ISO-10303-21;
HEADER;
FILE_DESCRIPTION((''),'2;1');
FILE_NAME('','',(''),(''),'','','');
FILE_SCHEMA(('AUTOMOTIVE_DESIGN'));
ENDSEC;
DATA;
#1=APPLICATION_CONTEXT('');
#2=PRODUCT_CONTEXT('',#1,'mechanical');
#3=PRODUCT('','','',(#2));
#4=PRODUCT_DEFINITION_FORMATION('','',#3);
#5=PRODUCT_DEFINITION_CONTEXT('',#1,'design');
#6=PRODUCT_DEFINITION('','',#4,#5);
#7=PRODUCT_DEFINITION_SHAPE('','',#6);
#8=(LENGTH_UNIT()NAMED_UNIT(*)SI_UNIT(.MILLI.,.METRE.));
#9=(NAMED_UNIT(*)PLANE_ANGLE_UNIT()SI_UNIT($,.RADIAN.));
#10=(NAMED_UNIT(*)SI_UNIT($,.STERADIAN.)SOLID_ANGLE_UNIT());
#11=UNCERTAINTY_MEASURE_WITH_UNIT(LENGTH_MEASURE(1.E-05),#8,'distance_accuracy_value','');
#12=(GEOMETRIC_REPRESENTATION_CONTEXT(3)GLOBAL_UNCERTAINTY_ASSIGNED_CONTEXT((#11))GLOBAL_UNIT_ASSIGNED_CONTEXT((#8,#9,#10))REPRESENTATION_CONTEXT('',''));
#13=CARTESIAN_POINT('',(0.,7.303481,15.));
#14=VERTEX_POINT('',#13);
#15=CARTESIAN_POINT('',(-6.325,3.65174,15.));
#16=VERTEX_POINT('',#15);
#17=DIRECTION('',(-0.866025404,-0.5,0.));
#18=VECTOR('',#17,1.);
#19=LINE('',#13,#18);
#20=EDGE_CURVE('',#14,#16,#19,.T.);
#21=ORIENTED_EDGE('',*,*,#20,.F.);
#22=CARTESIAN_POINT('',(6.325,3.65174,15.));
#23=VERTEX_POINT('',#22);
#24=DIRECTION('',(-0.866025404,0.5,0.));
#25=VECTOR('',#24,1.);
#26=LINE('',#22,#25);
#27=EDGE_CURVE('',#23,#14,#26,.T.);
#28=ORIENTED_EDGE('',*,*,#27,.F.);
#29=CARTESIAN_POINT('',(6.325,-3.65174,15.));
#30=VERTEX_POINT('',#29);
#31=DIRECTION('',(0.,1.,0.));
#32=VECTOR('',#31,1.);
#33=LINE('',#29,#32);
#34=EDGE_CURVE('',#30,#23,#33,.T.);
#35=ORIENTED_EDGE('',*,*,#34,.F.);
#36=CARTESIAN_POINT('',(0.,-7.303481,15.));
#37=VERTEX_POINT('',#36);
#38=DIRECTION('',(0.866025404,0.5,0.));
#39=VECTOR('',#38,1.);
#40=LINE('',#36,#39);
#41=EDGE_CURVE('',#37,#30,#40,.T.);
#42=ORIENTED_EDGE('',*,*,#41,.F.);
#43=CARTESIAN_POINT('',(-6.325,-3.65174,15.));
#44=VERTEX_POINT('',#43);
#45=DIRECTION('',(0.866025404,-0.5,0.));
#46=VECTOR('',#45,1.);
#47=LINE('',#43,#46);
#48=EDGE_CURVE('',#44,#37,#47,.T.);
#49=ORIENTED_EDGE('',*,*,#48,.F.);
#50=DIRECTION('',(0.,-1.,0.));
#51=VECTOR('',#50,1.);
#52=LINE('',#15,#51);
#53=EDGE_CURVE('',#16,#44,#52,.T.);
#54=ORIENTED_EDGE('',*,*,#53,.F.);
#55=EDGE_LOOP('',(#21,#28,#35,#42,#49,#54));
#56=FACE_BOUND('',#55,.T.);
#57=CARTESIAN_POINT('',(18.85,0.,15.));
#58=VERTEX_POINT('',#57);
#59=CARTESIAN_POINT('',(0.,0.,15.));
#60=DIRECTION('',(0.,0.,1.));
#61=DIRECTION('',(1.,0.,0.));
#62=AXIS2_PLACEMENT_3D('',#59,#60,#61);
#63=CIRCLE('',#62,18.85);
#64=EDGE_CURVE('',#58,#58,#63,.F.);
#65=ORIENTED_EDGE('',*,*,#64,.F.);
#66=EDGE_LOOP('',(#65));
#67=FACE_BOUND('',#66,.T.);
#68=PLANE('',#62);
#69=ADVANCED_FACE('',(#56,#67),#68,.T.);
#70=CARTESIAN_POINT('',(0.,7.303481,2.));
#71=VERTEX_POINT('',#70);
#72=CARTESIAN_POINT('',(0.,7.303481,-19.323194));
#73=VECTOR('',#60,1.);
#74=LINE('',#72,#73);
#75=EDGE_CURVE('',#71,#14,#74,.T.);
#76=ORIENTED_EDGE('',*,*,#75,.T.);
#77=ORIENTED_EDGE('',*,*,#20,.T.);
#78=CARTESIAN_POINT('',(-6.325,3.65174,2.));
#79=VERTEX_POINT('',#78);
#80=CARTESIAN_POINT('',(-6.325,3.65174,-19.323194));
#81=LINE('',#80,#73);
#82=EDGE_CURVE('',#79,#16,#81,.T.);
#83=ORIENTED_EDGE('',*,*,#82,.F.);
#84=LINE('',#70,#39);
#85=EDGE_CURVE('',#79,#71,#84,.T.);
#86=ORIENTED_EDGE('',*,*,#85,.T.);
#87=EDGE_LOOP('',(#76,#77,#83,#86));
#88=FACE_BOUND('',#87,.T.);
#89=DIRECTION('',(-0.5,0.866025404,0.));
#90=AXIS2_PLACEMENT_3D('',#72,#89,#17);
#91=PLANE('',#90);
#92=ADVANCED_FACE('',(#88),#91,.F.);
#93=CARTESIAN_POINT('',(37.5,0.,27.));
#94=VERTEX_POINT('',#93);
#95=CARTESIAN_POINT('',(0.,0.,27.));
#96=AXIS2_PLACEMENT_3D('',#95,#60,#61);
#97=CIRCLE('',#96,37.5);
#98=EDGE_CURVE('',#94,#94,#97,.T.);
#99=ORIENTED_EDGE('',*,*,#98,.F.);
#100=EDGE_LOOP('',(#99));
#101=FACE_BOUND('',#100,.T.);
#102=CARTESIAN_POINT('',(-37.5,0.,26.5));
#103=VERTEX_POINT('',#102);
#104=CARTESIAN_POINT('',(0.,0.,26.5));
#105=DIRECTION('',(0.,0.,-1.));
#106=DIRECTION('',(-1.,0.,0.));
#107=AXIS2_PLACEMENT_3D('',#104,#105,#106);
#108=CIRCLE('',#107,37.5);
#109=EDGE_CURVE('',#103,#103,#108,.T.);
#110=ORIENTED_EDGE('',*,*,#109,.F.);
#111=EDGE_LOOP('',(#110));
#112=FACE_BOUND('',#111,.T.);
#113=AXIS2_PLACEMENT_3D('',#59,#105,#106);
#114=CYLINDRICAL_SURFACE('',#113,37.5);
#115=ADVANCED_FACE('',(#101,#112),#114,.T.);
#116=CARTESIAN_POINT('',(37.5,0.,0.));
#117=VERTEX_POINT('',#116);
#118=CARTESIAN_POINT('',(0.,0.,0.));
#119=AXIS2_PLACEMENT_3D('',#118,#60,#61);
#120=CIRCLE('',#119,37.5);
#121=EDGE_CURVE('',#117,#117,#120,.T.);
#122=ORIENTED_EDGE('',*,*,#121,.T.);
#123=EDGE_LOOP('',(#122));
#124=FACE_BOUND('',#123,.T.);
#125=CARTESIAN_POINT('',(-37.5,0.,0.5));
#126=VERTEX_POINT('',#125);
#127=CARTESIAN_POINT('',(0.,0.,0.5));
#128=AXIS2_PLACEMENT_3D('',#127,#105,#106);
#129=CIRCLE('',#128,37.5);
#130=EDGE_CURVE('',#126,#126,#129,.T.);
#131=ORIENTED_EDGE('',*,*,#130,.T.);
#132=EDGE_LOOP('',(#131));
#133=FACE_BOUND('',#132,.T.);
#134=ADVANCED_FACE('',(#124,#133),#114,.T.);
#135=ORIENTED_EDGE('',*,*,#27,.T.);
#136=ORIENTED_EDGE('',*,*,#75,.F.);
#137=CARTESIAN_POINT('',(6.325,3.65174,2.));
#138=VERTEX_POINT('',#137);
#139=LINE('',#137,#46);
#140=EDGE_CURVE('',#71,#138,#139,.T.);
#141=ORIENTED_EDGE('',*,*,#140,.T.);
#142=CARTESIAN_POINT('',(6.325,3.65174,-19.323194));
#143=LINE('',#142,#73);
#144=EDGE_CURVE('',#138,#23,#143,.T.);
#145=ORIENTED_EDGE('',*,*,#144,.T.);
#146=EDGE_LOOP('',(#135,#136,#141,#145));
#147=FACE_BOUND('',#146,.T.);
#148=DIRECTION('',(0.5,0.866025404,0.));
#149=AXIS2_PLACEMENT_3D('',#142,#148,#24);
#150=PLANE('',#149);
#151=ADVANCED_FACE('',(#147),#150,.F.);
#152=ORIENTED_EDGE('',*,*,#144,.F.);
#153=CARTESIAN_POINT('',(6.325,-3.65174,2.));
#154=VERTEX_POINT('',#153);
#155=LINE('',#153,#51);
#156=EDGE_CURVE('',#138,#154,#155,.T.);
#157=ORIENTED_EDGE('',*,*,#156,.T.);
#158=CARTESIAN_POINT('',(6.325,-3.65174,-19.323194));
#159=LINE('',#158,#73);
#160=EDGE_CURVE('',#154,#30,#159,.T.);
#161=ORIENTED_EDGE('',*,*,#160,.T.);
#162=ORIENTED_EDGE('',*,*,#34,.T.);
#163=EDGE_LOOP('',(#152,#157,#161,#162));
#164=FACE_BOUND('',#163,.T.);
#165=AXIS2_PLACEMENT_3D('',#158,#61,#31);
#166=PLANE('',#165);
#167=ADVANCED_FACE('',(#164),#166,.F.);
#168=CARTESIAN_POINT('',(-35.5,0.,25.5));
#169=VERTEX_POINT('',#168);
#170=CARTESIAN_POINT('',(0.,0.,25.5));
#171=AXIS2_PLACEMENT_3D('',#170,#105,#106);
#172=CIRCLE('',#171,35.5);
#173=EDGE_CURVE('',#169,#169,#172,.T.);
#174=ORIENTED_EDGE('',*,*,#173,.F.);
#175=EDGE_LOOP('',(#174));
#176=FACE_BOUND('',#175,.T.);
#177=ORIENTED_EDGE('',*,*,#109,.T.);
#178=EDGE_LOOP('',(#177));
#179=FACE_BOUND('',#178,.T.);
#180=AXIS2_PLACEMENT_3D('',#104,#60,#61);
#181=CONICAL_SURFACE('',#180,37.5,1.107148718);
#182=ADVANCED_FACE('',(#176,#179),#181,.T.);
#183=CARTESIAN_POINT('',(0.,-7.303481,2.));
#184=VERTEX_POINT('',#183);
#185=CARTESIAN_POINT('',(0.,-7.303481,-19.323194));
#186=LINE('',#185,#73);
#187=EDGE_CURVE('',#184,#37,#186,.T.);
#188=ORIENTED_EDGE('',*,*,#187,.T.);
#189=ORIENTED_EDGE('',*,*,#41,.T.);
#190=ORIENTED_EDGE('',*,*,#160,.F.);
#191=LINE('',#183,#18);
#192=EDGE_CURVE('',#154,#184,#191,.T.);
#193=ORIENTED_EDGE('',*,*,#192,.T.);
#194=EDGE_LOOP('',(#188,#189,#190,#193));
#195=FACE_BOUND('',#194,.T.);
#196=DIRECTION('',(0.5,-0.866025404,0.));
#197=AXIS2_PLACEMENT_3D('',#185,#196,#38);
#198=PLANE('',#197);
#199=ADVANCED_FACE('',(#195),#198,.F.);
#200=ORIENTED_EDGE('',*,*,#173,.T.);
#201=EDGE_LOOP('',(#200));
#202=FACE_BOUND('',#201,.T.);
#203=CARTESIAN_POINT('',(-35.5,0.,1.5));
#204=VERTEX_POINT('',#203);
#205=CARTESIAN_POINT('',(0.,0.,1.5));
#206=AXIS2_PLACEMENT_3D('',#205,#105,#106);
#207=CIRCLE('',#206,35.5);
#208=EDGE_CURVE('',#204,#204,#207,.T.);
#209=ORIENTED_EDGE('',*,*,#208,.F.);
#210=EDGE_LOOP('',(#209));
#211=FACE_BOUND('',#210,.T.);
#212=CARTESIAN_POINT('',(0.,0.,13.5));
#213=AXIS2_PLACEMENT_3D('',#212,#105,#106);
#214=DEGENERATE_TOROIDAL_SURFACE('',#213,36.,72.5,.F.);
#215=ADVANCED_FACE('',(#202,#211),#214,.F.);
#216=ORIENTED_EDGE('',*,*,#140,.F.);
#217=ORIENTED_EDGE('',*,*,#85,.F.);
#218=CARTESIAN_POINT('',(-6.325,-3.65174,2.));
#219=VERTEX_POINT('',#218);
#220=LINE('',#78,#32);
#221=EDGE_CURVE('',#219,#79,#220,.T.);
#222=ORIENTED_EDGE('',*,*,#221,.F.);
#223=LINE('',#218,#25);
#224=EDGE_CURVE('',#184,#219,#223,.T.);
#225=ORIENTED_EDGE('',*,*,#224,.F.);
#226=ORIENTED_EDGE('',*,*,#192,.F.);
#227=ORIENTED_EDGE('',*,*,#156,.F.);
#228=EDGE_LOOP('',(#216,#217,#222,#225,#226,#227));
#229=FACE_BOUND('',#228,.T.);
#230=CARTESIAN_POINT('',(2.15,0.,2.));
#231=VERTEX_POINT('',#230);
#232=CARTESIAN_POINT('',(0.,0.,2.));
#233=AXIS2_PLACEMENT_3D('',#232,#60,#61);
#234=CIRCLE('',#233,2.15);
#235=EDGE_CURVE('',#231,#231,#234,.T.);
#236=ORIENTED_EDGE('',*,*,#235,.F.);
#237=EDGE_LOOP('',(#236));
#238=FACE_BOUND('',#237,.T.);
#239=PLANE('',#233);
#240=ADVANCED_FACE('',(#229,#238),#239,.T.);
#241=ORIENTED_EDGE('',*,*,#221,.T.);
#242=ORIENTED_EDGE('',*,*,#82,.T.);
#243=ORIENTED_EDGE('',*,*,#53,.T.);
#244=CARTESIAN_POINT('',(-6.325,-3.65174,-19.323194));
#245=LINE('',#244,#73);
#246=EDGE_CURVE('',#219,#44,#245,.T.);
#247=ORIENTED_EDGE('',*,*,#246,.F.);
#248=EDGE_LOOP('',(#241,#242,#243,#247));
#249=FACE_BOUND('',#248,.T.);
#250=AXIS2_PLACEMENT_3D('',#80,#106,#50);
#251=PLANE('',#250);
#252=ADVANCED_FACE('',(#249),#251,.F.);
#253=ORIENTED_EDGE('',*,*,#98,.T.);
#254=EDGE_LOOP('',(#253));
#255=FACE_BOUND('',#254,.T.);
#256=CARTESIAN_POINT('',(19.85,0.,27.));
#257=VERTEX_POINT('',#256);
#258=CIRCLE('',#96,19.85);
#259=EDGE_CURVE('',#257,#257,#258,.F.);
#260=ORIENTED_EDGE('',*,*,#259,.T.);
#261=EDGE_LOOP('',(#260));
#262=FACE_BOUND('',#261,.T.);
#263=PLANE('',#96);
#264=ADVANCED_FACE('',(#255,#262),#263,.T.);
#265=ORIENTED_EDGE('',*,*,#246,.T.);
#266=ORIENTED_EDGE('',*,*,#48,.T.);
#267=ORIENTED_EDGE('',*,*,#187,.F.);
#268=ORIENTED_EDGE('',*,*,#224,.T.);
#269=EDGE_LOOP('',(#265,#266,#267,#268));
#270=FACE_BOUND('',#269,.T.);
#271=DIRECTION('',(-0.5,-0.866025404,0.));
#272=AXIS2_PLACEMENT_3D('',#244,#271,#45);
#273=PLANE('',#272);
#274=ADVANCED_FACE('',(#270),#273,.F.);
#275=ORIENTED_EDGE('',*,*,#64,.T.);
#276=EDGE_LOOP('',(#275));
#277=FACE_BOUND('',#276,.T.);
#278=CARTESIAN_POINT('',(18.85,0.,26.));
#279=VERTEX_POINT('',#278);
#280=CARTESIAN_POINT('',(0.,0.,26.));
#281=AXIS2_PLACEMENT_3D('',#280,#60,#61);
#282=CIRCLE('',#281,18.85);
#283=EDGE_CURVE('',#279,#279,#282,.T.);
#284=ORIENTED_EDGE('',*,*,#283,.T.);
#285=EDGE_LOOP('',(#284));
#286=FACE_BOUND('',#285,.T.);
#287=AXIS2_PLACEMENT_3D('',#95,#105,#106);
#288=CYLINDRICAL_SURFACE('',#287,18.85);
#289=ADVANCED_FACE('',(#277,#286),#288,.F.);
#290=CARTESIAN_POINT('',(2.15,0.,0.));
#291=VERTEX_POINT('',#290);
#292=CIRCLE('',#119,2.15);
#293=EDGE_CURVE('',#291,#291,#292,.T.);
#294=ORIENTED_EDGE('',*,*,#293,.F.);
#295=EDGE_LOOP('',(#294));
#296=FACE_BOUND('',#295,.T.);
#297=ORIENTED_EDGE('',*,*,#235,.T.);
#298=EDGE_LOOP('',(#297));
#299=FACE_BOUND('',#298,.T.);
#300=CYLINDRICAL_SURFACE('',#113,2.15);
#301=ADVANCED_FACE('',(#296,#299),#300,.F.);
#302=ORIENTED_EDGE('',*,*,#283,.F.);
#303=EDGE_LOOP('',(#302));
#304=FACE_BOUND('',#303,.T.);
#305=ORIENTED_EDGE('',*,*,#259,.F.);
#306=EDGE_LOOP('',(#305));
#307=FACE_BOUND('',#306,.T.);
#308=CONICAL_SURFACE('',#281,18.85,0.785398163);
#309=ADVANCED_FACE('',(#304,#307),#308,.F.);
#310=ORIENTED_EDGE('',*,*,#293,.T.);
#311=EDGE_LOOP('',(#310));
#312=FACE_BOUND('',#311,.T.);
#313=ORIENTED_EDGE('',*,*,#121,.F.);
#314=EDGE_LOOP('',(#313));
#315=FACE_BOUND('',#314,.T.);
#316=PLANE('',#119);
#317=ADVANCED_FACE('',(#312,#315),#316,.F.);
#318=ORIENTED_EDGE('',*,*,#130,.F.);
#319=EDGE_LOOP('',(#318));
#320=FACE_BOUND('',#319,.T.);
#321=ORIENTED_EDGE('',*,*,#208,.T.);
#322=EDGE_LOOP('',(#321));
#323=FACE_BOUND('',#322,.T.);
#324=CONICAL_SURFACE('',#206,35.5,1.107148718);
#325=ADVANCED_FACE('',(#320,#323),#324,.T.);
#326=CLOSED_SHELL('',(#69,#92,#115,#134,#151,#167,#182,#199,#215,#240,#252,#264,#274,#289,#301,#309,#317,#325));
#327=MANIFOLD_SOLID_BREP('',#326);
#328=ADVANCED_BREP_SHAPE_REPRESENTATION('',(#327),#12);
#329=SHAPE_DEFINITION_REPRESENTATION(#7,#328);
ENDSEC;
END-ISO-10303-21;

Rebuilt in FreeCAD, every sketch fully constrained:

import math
import FreeCAD as App
import Part
import Sketcher

V = App.Vector
Q = App.Units.Quantity


def edges_at(feature, points):
    """Names of the edges that pass closest to the given points."""
    edges = feature.Shape.Edges
    near = lambda p: min(range(len(edges)), key=lambda i: edges[i].distToShape(Part.Vertex(*p))[0])
    return sorted({f"Edge{near(p) + 1}" for p in points})

doc = App.newDocument("Part")
body = doc.addObject("PartDesign::Body", "Body")

# Sketch on XY plane
sketch1 = doc.addObject("Sketcher::SketchObject", "Sketch")
body.addObject(sketch1)
sketch1.AttachmentSupport = (doc.XY_Plane, [""])
sketch1.MapMode = "FlatFace"
sketch1.addGeometry(Part.Circle(V(0, 0, 0), V(0, 0, 1), 37.5), False)
sketch1.addGeometry(Part.Circle(V(0, 0, 0), V(0, 0, 1), 2.1), False)
sketch1.addConstraint(Sketcher.Constraint("Coincident", 0, 3, -1, 1))
sketch1.addConstraint(Sketcher.Constraint("Coincident", 1, 3, -1, 1))
sketch1.addConstraint(Sketcher.Constraint("Diameter", 0, 75.0))
sketch1.addConstraint(Sketcher.Constraint("Diameter", 1, 4.3))
pad1 = doc.addObject("PartDesign::Pad", "Pad")
body.addObject(pad1)
pad1.Profile = sketch1
pad1.Length = 15

# Sketch on XY plane
sketch2 = doc.addObject("Sketcher::SketchObject", "Sketch001")
body.addObject(sketch2)
sketch2.AttachmentSupport = (doc.XY_Plane, [""])
sketch2.MapMode = "FlatFace"
sketch2.AttachmentOffset = App.Placement(V(0, 0, 15), App.Rotation())
sketch2.addGeometry(Part.Circle(V(0, 0, 0), V(0, 0, 1), 38), False)
sketch2.addGeometry(Part.Circle(V(0, 0, 0), V(0, 0, 1), 19), False)
sketch2.addConstraint(Sketcher.Constraint("Coincident", 0, 3, -1, 1))
sketch2.addConstraint(Sketcher.Constraint("Coincident", 1, 3, -1, 1))
sketch2.addConstraint(Sketcher.Constraint("Diameter", 0, 75.0))
sketch2.addConstraint(Sketcher.Constraint("Diameter", 1, 37.7))
pad2 = doc.addObject("PartDesign::Pad", "Pad001")
body.addObject(pad2)
pad2.Profile = sketch2
pad2.Length = 12

# Sketch on XY plane
sketch3 = doc.addObject("Sketcher::SketchObject", "Sketch002")
body.addObject(sketch3)
sketch3.AttachmentSupport = (doc.XY_Plane, [""])
sketch3.MapMode = "FlatFace"
sketch3.AttachmentOffset = App.Placement(V(0, 0, 15), App.Rotation())
sketch3.addGeometry(Part.LineSegment(V(6, -4, 0), V(6, 4, 0)), False)
sketch3.addGeometry(Part.LineSegment(V(6, 4, 0), V(0, 7, 0)), False)
sketch3.addGeometry(Part.LineSegment(V(0, 7, 0), V(-6, 4, 0)), False)
sketch3.addGeometry(Part.LineSegment(V(-6, 4, 0), V(-6, -4, 0)), False)
sketch3.addGeometry(Part.LineSegment(V(-6, -4, 0), V(0, -7, 0)), False)
sketch3.addGeometry(Part.LineSegment(V(0, -7, 0), V(6, -4, 0)), False)
sketch3.addConstraint(Sketcher.Constraint("Coincident", 0, 2, 1, 1))
sketch3.addConstraint(Sketcher.Constraint("Coincident", 1, 2, 2, 1))
sketch3.addConstraint(Sketcher.Constraint("Coincident", 2, 2, 3, 1))
sketch3.addConstraint(Sketcher.Constraint("Coincident", 3, 2, 4, 1))
sketch3.addConstraint(Sketcher.Constraint("Coincident", 4, 2, 5, 1))
sketch3.addConstraint(Sketcher.Constraint("Coincident", 5, 2, 0, 1))
sketch3.addConstraint(Sketcher.Constraint("Vertical", 0))
sketch3.addConstraint(Sketcher.Constraint("Vertical", 3))
sketch3.addConstraint(Sketcher.Constraint("Symmetric", 0, 2, 3, 2, -1, 1))
sketch3.addConstraint(Sketcher.Constraint("Symmetric", 1, 2, 4, 2, -1, 1))
sketch3.addConstraint(Sketcher.Constraint("PointOnObject", 1, 2, -2))
sketch3.addConstraint(Sketcher.Constraint("Parallel", 2, 5))
sketch3.addConstraint(Sketcher.Constraint("Horizontal", 0, 2, 2, 2))
sketch3.addConstraint(Sketcher.Constraint("Angle", 1, Q("150 deg")))
sketch3.addConstraint(Sketcher.Constraint("DistanceX", 2, 2, 0, 2, 12.65))
sketch3.addConstraint(Sketcher.Constraint("DistanceY", 0, 1, 0, 2, 7.303481))
pocket1 = doc.addObject("PartDesign::Pocket", "Pocket")
body.addObject(pocket1)
pocket1.Profile = sketch3
pocket1.Length = 13
doc.recompute()

chamfer = doc.addObject("PartDesign::Chamfer", "Chamfer")
body.addObject(chamfer)
chamfer.Base = (pocket1, edges_at(pocket1, [(-18.85, 0, 27)]))
chamfer.Size = 1

# Sketch on YZ plane
sketch4 = doc.addObject("Sketcher::SketchObject", "Sketch003")
body.addObject(sketch4)
sketch4.AttachmentSupport = (doc.YZ_Plane, [""])
sketch4.MapMode = "FlatFace"
sketch4.addGeometry(Part.LineSegment(V(37.5, 0.5, 0), V(37.5, 26.5, 0)), False)
sketch4.addGeometry(Part.LineSegment(V(37.5, 26.5, 0), V(35.5, 25.5, 0)), False)
sketch4.addGeometry(Part.ArcOfCircle(Part.Circle(V(-36, 13.5, 0), V(0, 0, 1), 72.5), math.radians(-9.53), math.radians(9.53)), False)
sketch4.addGeometry(Part.LineSegment(V(35.5, 1.5, 0), V(37.5, 0.5, 0)), False)
sketch4.addConstraint(Sketcher.Constraint("Coincident", 0, 2, 1, 1))
sketch4.addConstraint(Sketcher.Constraint("Coincident", 1, 2, 2, 2))
sketch4.addConstraint(Sketcher.Constraint("Coincident", 2, 1, 3, 1))
sketch4.addConstraint(Sketcher.Constraint("Coincident", 3, 2, 0, 1))
sketch4.addConstraint(Sketcher.Constraint("Vertical", 0))
sketch4.addConstraint(Sketcher.Constraint("Vertical", 1, 2, 2, 1))
sketch4.addConstraint(Sketcher.Constraint("Equal", 1, 3))
sketch4.addConstraint(Sketcher.Constraint("Radius", 2, 72.5))
sketch4.addConstraint(Sketcher.Constraint("DistanceY", 0, 1, 0, 2, 26.0))
sketch4.addConstraint(Sketcher.Constraint("DistanceX", 2, 3, -1, 1, 36.0))
sketch4.addConstraint(Sketcher.Constraint("DistanceX", 1, 2, 0, 2, 2.0))
sketch4.addConstraint(Sketcher.Constraint("DistanceY", 1, 2, 0, 2, 1.0))
sketch4.addConstraint(Sketcher.Constraint("DistanceY", -1, 1, 2, 3, 13.5))
groove = doc.addObject("PartDesign::Groove", "Groove")
body.addObject(groove)
groove.Profile = sketch4
groove.ReferenceAxis = (sketch4, ["V_Axis"])
groove.Angle = 360

doc.recompute()
